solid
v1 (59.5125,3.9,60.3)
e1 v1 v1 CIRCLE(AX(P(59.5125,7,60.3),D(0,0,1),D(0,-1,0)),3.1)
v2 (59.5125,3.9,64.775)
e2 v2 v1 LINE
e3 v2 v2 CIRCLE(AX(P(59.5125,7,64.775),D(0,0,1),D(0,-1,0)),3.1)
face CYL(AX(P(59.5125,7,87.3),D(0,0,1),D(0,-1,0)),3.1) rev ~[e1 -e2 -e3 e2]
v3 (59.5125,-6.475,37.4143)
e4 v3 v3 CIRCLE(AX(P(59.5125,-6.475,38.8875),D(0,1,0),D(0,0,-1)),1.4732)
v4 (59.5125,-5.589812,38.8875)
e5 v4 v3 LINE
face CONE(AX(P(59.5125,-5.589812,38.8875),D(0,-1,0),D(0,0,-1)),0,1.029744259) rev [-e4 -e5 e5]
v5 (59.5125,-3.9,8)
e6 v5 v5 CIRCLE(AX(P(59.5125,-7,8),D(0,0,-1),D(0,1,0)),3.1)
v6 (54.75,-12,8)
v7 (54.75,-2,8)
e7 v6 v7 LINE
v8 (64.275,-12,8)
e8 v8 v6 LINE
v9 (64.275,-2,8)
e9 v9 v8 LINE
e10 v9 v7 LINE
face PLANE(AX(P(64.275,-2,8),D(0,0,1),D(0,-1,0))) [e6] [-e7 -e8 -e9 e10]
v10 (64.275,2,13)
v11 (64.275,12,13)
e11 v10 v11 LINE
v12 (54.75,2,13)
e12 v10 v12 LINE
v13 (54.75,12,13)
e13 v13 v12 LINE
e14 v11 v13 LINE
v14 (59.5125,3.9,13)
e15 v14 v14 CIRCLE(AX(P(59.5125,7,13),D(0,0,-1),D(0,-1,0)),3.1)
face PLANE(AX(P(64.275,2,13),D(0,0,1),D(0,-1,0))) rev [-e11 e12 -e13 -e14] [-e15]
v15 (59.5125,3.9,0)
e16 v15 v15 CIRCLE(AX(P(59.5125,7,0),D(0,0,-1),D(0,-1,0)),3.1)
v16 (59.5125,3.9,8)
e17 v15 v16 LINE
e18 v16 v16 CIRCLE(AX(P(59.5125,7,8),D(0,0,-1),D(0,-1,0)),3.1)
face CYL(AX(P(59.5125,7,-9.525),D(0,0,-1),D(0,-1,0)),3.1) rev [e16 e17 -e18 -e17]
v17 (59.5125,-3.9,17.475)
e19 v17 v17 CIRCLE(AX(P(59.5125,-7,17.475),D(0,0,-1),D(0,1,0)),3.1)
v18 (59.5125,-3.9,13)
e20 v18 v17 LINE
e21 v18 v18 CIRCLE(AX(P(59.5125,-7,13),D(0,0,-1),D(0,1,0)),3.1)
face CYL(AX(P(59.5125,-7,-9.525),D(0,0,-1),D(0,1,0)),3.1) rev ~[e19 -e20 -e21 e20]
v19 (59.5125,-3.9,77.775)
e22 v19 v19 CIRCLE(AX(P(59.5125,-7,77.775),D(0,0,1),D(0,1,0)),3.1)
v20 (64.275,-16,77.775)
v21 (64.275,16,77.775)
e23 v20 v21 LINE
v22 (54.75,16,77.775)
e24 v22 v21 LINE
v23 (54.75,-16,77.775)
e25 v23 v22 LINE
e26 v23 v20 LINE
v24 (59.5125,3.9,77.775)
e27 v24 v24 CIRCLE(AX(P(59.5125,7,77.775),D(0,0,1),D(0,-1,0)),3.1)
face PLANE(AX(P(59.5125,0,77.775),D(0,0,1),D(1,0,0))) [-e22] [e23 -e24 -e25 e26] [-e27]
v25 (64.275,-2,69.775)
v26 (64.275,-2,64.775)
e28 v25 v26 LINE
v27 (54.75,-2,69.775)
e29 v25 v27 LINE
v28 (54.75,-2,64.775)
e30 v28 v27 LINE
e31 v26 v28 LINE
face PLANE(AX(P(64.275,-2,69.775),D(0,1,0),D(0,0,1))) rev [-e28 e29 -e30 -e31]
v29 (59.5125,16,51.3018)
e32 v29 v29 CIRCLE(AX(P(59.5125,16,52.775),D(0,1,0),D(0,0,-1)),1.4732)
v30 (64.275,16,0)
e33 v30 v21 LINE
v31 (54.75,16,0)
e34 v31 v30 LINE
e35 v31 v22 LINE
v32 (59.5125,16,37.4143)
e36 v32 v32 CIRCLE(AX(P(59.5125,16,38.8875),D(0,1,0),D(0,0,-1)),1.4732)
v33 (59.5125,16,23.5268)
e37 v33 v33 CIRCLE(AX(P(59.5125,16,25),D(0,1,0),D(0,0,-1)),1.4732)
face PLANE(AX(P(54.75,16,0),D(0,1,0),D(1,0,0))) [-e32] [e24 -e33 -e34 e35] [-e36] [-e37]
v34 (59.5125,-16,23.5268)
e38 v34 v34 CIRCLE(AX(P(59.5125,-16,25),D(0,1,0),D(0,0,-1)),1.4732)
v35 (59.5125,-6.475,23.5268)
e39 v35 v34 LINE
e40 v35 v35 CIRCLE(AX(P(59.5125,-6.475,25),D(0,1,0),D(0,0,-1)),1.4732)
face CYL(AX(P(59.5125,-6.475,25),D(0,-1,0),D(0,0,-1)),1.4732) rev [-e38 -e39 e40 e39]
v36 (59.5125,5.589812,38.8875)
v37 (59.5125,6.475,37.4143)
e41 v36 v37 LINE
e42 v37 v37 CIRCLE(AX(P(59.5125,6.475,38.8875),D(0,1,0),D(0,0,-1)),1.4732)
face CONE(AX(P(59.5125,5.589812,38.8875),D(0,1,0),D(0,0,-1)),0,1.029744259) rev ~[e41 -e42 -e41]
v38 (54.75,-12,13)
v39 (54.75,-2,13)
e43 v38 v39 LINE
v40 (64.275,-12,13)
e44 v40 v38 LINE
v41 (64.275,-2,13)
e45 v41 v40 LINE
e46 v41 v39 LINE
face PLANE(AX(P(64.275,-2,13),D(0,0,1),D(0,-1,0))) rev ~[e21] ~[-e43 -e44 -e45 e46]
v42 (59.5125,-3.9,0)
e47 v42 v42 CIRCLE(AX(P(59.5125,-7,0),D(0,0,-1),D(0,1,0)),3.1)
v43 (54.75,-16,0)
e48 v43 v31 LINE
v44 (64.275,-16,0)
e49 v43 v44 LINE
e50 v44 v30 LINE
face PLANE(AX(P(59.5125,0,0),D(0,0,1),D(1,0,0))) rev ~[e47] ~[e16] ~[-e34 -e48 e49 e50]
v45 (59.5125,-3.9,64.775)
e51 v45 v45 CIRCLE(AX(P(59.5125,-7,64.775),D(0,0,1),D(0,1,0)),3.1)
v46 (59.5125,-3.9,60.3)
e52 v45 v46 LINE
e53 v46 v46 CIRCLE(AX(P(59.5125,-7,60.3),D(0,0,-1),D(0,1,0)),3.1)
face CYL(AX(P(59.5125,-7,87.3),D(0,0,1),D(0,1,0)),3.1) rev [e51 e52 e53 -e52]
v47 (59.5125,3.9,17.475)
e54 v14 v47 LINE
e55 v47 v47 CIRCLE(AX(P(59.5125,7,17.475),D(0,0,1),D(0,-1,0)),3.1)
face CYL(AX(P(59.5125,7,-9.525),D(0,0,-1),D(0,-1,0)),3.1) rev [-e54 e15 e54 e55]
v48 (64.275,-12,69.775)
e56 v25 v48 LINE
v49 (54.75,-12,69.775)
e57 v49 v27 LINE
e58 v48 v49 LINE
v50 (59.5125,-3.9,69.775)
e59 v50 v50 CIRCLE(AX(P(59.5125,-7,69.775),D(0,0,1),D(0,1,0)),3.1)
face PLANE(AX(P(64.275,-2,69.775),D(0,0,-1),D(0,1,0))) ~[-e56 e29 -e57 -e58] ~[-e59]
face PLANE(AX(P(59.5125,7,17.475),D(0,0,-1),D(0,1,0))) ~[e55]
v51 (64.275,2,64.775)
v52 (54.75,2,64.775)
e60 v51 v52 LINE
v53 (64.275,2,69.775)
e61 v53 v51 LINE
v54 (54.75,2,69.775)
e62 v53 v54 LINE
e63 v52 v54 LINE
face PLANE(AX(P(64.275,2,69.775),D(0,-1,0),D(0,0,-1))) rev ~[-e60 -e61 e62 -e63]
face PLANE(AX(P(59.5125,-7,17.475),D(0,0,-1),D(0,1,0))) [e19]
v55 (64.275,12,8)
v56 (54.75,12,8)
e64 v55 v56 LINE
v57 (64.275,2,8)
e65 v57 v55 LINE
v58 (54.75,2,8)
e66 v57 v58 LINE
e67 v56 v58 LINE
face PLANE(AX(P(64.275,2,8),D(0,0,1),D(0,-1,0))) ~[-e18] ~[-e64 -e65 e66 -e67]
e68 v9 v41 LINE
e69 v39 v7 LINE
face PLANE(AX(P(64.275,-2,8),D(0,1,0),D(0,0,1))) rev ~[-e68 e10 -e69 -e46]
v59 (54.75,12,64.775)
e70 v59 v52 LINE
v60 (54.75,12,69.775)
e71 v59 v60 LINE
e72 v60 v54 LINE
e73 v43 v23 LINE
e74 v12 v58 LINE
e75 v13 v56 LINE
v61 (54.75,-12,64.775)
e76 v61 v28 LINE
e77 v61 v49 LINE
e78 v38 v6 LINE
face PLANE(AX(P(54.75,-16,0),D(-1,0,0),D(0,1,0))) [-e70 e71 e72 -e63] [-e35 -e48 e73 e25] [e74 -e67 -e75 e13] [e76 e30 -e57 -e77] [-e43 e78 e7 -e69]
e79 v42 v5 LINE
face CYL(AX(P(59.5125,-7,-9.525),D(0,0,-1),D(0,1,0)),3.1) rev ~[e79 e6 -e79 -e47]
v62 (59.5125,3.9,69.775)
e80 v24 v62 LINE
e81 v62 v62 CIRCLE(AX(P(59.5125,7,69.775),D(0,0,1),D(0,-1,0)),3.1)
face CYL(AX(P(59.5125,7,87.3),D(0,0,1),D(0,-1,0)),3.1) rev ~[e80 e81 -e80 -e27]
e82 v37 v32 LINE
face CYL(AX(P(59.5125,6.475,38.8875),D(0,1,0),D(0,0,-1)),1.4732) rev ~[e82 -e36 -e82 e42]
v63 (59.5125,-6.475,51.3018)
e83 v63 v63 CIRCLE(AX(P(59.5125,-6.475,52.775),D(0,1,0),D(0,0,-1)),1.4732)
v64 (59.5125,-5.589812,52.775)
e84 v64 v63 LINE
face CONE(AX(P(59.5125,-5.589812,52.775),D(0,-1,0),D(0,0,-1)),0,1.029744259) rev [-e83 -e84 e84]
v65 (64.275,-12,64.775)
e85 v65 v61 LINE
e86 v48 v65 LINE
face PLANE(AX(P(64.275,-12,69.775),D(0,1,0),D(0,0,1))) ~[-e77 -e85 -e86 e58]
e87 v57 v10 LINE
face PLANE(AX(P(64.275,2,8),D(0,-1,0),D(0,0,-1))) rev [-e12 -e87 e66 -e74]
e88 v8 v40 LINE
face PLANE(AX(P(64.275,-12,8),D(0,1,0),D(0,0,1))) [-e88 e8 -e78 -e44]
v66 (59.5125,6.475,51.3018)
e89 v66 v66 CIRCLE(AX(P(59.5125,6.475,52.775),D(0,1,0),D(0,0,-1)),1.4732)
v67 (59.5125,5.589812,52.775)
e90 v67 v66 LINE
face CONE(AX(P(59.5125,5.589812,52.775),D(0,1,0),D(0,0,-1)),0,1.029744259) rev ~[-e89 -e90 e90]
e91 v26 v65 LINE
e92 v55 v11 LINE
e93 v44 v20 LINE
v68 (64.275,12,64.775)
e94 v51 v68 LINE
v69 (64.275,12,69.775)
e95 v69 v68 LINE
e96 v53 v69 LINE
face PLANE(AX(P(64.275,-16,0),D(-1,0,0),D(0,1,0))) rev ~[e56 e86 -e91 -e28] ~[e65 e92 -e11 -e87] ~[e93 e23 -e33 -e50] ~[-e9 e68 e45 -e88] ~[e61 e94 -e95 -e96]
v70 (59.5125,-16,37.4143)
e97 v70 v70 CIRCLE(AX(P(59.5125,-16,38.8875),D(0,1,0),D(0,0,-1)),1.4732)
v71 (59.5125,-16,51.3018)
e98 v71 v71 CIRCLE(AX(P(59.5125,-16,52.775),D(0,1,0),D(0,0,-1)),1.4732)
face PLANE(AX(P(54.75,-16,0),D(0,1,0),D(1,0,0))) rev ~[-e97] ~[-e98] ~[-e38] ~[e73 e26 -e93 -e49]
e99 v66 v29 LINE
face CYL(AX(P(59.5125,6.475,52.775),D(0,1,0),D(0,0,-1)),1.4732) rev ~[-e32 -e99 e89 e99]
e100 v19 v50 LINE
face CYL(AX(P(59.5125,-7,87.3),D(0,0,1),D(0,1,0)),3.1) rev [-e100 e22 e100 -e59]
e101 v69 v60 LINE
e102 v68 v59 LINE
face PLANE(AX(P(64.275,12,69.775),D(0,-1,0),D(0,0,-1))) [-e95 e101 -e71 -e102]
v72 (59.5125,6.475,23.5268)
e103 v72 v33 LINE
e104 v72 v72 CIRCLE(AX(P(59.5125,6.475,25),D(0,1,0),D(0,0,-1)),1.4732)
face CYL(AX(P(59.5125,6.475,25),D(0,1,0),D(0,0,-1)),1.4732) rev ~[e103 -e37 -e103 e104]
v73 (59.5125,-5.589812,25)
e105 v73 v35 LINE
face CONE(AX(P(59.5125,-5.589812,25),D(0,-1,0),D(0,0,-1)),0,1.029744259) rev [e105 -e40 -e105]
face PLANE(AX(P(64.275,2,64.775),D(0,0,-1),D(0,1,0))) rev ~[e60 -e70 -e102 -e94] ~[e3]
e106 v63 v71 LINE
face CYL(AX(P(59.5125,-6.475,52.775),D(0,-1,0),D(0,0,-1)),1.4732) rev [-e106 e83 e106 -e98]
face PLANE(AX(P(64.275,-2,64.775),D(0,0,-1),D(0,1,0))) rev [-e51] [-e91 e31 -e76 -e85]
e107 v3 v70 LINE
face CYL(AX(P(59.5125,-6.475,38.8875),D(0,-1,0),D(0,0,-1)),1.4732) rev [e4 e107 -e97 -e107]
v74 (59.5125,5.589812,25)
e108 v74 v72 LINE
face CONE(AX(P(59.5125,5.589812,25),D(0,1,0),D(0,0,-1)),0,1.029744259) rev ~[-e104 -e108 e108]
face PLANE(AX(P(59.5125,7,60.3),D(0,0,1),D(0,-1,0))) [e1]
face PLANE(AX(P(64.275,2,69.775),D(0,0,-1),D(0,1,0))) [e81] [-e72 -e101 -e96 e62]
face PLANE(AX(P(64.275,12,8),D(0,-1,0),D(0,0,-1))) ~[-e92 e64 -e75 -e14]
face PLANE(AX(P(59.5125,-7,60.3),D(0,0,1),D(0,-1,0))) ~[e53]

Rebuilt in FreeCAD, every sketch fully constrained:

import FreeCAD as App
import Part
import Sketcher
Q = App.Units.Quantity


def add_polygon(sketch, points):
    """Adds a closed chain of lines whose ends are joined by coincident constraints."""
    first, n = sketch.GeometryCount, len(points)
    for a, b in zip(points, points[1:] + points[:1]):
        sketch.addGeometry(Part.LineSegment(App.Vector(*a, 0), App.Vector(*b, 0)), False)
    for i in range(n):
        sketch.addConstraint(Sketcher.Constraint("Coincident", first + i, 2, first + (i + 1) % n, 1))

doc = App.newDocument("Part")
body = doc.addObject("PartDesign::Body", "Body")

# Sketch on XY plane
sketch1 = body.newObject("Sketcher::SketchObject", "Sketch")
sketch1.AttachmentSupport = (doc.getObject("XY_Plane"), [""])
sketch1.MapMode = "FlatFace"
add_polygon(sketch1, [(55, 16), (55, -16), (64, -16), (64, 16)])  # lines 0-3
sketch1.addConstraint([
    Sketcher.Constraint("Vertical", 0),
    Sketcher.Constraint("Horizontal", 1),
    Sketcher.Constraint("Vertical", 2),
    Sketcher.Constraint("Horizontal", 3),
    Sketcher.Constraint("DistanceY", 0, 2, 0, 1, 32.0),
    Sketcher.Constraint("DistanceY", 0, 2, -1, 1, 16.0),
    Sketcher.Constraint("DistanceX", 1, 1, 1, 2, 9.525),
    Sketcher.Constraint("DistanceX", -1, 1, 0, 2, 54.75),
])
pad1 = body.newObject("PartDesign::Pad", "Pad")
pad1.Profile = sketch1
pad1.Length = 77.775

# Sketch on YZ plane
sketch2 = body.newObject("Sketcher::SketchObject", "Sketch001")
sketch2.AttachmentSupport = (doc.getObject("YZ_Plane"), [""])
sketch2.MapMode = "FlatFace"
sketch2.AttachmentOffset = App.Placement(App.Vector(0, 0, 64.275), App.Rotation())
add_polygon(sketch2, [(12, 70), (2, 70), (2, 65), (12, 65)])  # lines 0-3
sketch2.addConstraint([
    Sketcher.Constraint("Horizontal", 0),
    Sketcher.Constraint("Vertical", 1),
    Sketcher.Constraint("Horizontal", 2),
    Sketcher.Constraint("Vertical", 3),
    Sketcher.Constraint("DistanceX", 0, 2, 0, 1, 10.0),
    Sketcher.Constraint("DistanceY", 1, 2, 1, 1, 5.0),
    Sketcher.Constraint("DistanceX", -1, 1, 0, 2, 2.0),
    Sketcher.Constraint("DistanceY", -1, 1, 0, 2, 69.775),
])
pocket1 = body.newObject("PartDesign::Pocket", "Pocket")
pocket1.Profile = sketch2
pocket1.Type = "ThroughAll"

# Sketch on XY plane
sketch3 = body.newObject("Sketcher::SketchObject", "Sketch002")
sketch3.AttachmentSupport = (doc.getObject("XY_Plane"), [""])
sketch3.MapMode = "FlatFace"
sketch3.AttachmentOffset = App.Placement(App.Vector(0, 0, 87.3), App.Rotation())
sketch3.addGeometry(Part.Circle(App.Vector(59.5, 7, 0), App.Vector(0, 0, 1), 3.1), False)
sketch3.addConstraint([
    Sketcher.Constraint("Diameter", 0, 6.2),
    Sketcher.Constraint("DistanceY", -1, 1, 0, 3, 7.0),
    Sketcher.Constraint("DistanceX", -1, 1, 0, 3, 59.5125),
])
pocket2 = body.newObject("PartDesign::Pocket", "Pocket001")
pocket2.Profile = sketch3
pocket2.Length = 27
doc.recompute()

mirrored = body.newObject("PartDesign::Mirrored", "Mirrored")
mirrored.Originals = [pocket1, pocket2]
mirrored.MirrorPlane = (doc.getObject("XZ_Plane"), [""])
body.Tip = mirrored
doc.recompute()

datumplane = body.newObject("PartDesign::Plane", "DatumPlane")
datumplane.AttachmentSupport = (doc.getObject("XY_Plane"), [""])
datumplane.MapMode = "FlatFace"
datumplane.AttachmentOffset = App.Placement(App.Vector(0, 0, 38.8875), App.Rotation())
mirrored2 = body.newObject("PartDesign::Mirrored", "Mirrored001")
mirrored2.Originals = [pocket1, pocket2]
mirrored2.MirrorPlane = (datumplane, [""])
body.Tip = mirrored2

# Sketch on YZ plane
sketch4 = body.newObject("Sketcher::SketchObject", "Sketch003")
sketch4.AttachmentSupport = (doc.getObject("YZ_Plane"), [""])
sketch4.MapMode = "FlatFace"
sketch4.AttachmentOffset = App.Placement(App.Vector(0, 0, 64.275), App.Rotation())
add_polygon(sketch4, [(-12, 8), (-2, 8), (-2, 13), (-12, 13)])  # lines 0-3
sketch4.addConstraint([
    Sketcher.Constraint("Horizontal", 0),
    Sketcher.Constraint("Vertical", 1),
    Sketcher.Constraint("Horizontal", 2),
    Sketcher.Constraint("Vertical", 3),
    Sketcher.Constraint("DistanceX", 0, 1, 0, 2, 10.0),
    Sketcher.Constraint("DistanceY", 1, 1, 1, 2, 5.0),
    Sketcher.Constraint("DistanceX", 0, 2, -1, 1, 2.0),
    Sketcher.Constraint("DistanceY", -1, 1, 0, 2, 8.0),
])
pocket3 = body.newObject("PartDesign::Pocket", "Pocket002")
pocket3.Profile = sketch4
pocket3.Type = "ThroughAll"

# Sketch on XY plane
sketch5 = body.newObject("Sketcher::SketchObject", "Sketch004")
sketch5.AttachmentSupport = (doc.getObject("XY_Plane"), [""])
sketch5.MapMode = "FlatFace"
sketch5.AttachmentOffset = App.Placement(App.Vector(0, 0, -9.525), App.Rotation())
sketch5.addGeometry(Part.Circle(App.Vector(59.5, -7, 0), App.Vector(0, 0, 1), 3.1), False)
sketch5.addConstraint([
    Sketcher.Constraint("Diameter", 0, 6.2),
    Sketcher.Constraint("DistanceY", 0, 3, -1, 1, 7.0),
    Sketcher.Constraint("DistanceX", -1, 1, 0, 3, 59.5125),
])
pocket4 = body.newObject("PartDesign::Pocket", "Pocket003")
pocket4.Profile = sketch5
pocket4.Length = 27
pocket4.Reversed = True

# Sketch on YZ plane
sketch6 = body.newObject("Sketcher::SketchObject", "Sketch005")
sketch6.AttachmentSupport = (doc.getObject("YZ_Plane"), [""])
sketch6.MapMode = "FlatFace"
sketch6.AttachmentOffset = App.Placement(App.Vector(0, 0, 59.5125), App.Rotation())
add_polygon(sketch6, [(-5.6, 52.8), (-16, 52.8), (-16, 51.3), (-6.5, 51.3)])  # lines 0-3
sketch6.addGeometry(Part.LineSegment(App.Vector(-16, 52.8, 0), App.Vector(-5.6, 52.8, 0)), True)  # axis
sketch6.addConstraint([
    Sketcher.Constraint("Horizontal", 0),
    Sketcher.Constraint("Vertical", 1),
    Sketcher.Constraint("Horizontal", 2),
    Sketcher.Constraint("Horizontal", 4),
    Sketcher.Constraint("Coincident", 4, 1, 0, 2),
    Sketcher.Constraint("Equal", 0, 4),
    Sketcher.Constraint("Angle", 3, Q("59 deg")),
    Sketcher.Constraint("DistanceX", 0, 2, -1, 1, 16.0),
    Sketcher.Constraint("DistanceX", 2, 1, 2, 2, 9.525),
    Sketcher.Constraint("DistanceY", 1, 2, 1, 1, 1.4732),
    Sketcher.Constraint("DistanceY", -1, 1, 0, 2, 52.775),
])
groove = body.newObject("PartDesign::Groove", "Groove")
groove.Profile = sketch6
groove.ReferenceAxis = (sketch6, ["Axis0"])
groove.Angle = 360
doc.recompute()

linearpattern = body.newObject("PartDesign::LinearPattern", "LinearPattern")
linearpattern.Originals = [groove]
linearpattern.Direction = (doc.getObject("Z_Axis"), [""])
linearpattern.Mode = "offset"
linearpattern.Offset = 13.8875
linearpattern.Occurrences = 3
linearpattern.Reversed = True
body.Tip = linearpattern
doc.recompute()

mirrored3 = body.newObject("PartDesign::Mirrored", "Mirrored002")
mirrored3.Originals = [groove]
mirrored3.MirrorPlane = (doc.getObject("XZ_Plane"), [""])
body.Tip = mirrored3

# Sketch on YZ plane
sketch7 = body.newObject("Sketcher::SketchObject", "Sketch006")
sketch7.AttachmentSupport = (doc.getObject("YZ_Plane"), [""])
sketch7.MapMode = "FlatFace"
sketch7.AttachmentOffset = App.Placement(App.Vector(0, 0, 59.5125), App.Rotation())
add_polygon(sketch7, [(16, 38.9), (5.6, 38.9), (6.5, 37.4), (16, 37.4)])  # lines 0-3
sketch7.addGeometry(Part.LineSegment(App.Vector(5.6, 38.9, 0), App.Vector(16, 38.9, 0)), True)  # axis
sketch7.addConstraint([
    Sketcher.Constraint("Horizontal", 0),
    Sketcher.Constraint("Horizontal", 2),
    Sketcher.Constraint("Vertical", 3),
    Sketcher.Constraint("Horizontal", 4),
    Sketcher.Constraint("Coincident", 4, 1, 0, 2),
    Sketcher.Constraint("Vertical", 2, 2, 4, 2),
    Sketcher.Constraint("Angle", 1, Q("-59 deg")),
    Sketcher.Constraint("DistanceX", -1, 1, 2, 2, 16.0),
    Sketcher.Constraint("DistanceX", 2, 1, 2, 2, 9.525),
    Sketcher.Constraint("DistanceY", 3, 1, 3, 2, 1.4732),
    Sketcher.Constraint("DistanceY", -1, 1, 0, 2, 38.8875),
])
groove2 = body.newObject("PartDesign::Groove", "Groove001")
groove2.Profile = sketch7
groove2.ReferenceAxis = (sketch7, ["Axis0"])
groove2.Angle = 360

# Sketch on YZ plane
sketch8 = body.newObject("Sketcher::SketchObject", "Sketch007")
sketch8.AttachmentSupport = (doc.getObject("YZ_Plane"), [""])
sketch8.MapMode = "FlatFace"
sketch8.AttachmentOffset = App.Placement(App.Vector(0, 0, 59.5125), App.Rotation())
add_polygon(sketch8, [(16, 25), (5.6, 25), (6.5, 23.5), (16, 23.5)])  # lines 0-3
sketch8.addGeometry(Part.LineSegment(App.Vector(5.6, 25, 0), App.Vector(16, 25, 0)), True)  # axis
sketch8.addConstraint([
    Sketcher.Constraint("Horizontal", 0),
    Sketcher.Constraint("Horizontal", 2),
    Sketcher.Constraint("Vertical", 3),
    Sketcher.Constraint("Horizontal", 4),
    Sketcher.Constraint("Coincident", 4, 1, 0, 2),
    Sketcher.Constraint("Vertical", 2, 2, 4, 2),
    Sketcher.Constraint("Angle", 1, Q("-59 deg")),
    Sketcher.Constraint("DistanceY", -1, 1, 0, 2, 25.0),
    Sketcher.Constraint("DistanceX", -1, 1, 2, 2, 16.0),
    Sketcher.Constraint("DistanceX", 2, 1, 2, 2, 9.525),
    Sketcher.Constraint("DistanceY", 3, 1, 3, 2, 1.4732),
])
groove3 = body.newObject("PartDesign::Groove", "Groove002")
groove3.Profile = sketch8
groove3.ReferenceAxis = (sketch8, ["Axis0"])
groove3.Angle = 360

doc.recompute()
